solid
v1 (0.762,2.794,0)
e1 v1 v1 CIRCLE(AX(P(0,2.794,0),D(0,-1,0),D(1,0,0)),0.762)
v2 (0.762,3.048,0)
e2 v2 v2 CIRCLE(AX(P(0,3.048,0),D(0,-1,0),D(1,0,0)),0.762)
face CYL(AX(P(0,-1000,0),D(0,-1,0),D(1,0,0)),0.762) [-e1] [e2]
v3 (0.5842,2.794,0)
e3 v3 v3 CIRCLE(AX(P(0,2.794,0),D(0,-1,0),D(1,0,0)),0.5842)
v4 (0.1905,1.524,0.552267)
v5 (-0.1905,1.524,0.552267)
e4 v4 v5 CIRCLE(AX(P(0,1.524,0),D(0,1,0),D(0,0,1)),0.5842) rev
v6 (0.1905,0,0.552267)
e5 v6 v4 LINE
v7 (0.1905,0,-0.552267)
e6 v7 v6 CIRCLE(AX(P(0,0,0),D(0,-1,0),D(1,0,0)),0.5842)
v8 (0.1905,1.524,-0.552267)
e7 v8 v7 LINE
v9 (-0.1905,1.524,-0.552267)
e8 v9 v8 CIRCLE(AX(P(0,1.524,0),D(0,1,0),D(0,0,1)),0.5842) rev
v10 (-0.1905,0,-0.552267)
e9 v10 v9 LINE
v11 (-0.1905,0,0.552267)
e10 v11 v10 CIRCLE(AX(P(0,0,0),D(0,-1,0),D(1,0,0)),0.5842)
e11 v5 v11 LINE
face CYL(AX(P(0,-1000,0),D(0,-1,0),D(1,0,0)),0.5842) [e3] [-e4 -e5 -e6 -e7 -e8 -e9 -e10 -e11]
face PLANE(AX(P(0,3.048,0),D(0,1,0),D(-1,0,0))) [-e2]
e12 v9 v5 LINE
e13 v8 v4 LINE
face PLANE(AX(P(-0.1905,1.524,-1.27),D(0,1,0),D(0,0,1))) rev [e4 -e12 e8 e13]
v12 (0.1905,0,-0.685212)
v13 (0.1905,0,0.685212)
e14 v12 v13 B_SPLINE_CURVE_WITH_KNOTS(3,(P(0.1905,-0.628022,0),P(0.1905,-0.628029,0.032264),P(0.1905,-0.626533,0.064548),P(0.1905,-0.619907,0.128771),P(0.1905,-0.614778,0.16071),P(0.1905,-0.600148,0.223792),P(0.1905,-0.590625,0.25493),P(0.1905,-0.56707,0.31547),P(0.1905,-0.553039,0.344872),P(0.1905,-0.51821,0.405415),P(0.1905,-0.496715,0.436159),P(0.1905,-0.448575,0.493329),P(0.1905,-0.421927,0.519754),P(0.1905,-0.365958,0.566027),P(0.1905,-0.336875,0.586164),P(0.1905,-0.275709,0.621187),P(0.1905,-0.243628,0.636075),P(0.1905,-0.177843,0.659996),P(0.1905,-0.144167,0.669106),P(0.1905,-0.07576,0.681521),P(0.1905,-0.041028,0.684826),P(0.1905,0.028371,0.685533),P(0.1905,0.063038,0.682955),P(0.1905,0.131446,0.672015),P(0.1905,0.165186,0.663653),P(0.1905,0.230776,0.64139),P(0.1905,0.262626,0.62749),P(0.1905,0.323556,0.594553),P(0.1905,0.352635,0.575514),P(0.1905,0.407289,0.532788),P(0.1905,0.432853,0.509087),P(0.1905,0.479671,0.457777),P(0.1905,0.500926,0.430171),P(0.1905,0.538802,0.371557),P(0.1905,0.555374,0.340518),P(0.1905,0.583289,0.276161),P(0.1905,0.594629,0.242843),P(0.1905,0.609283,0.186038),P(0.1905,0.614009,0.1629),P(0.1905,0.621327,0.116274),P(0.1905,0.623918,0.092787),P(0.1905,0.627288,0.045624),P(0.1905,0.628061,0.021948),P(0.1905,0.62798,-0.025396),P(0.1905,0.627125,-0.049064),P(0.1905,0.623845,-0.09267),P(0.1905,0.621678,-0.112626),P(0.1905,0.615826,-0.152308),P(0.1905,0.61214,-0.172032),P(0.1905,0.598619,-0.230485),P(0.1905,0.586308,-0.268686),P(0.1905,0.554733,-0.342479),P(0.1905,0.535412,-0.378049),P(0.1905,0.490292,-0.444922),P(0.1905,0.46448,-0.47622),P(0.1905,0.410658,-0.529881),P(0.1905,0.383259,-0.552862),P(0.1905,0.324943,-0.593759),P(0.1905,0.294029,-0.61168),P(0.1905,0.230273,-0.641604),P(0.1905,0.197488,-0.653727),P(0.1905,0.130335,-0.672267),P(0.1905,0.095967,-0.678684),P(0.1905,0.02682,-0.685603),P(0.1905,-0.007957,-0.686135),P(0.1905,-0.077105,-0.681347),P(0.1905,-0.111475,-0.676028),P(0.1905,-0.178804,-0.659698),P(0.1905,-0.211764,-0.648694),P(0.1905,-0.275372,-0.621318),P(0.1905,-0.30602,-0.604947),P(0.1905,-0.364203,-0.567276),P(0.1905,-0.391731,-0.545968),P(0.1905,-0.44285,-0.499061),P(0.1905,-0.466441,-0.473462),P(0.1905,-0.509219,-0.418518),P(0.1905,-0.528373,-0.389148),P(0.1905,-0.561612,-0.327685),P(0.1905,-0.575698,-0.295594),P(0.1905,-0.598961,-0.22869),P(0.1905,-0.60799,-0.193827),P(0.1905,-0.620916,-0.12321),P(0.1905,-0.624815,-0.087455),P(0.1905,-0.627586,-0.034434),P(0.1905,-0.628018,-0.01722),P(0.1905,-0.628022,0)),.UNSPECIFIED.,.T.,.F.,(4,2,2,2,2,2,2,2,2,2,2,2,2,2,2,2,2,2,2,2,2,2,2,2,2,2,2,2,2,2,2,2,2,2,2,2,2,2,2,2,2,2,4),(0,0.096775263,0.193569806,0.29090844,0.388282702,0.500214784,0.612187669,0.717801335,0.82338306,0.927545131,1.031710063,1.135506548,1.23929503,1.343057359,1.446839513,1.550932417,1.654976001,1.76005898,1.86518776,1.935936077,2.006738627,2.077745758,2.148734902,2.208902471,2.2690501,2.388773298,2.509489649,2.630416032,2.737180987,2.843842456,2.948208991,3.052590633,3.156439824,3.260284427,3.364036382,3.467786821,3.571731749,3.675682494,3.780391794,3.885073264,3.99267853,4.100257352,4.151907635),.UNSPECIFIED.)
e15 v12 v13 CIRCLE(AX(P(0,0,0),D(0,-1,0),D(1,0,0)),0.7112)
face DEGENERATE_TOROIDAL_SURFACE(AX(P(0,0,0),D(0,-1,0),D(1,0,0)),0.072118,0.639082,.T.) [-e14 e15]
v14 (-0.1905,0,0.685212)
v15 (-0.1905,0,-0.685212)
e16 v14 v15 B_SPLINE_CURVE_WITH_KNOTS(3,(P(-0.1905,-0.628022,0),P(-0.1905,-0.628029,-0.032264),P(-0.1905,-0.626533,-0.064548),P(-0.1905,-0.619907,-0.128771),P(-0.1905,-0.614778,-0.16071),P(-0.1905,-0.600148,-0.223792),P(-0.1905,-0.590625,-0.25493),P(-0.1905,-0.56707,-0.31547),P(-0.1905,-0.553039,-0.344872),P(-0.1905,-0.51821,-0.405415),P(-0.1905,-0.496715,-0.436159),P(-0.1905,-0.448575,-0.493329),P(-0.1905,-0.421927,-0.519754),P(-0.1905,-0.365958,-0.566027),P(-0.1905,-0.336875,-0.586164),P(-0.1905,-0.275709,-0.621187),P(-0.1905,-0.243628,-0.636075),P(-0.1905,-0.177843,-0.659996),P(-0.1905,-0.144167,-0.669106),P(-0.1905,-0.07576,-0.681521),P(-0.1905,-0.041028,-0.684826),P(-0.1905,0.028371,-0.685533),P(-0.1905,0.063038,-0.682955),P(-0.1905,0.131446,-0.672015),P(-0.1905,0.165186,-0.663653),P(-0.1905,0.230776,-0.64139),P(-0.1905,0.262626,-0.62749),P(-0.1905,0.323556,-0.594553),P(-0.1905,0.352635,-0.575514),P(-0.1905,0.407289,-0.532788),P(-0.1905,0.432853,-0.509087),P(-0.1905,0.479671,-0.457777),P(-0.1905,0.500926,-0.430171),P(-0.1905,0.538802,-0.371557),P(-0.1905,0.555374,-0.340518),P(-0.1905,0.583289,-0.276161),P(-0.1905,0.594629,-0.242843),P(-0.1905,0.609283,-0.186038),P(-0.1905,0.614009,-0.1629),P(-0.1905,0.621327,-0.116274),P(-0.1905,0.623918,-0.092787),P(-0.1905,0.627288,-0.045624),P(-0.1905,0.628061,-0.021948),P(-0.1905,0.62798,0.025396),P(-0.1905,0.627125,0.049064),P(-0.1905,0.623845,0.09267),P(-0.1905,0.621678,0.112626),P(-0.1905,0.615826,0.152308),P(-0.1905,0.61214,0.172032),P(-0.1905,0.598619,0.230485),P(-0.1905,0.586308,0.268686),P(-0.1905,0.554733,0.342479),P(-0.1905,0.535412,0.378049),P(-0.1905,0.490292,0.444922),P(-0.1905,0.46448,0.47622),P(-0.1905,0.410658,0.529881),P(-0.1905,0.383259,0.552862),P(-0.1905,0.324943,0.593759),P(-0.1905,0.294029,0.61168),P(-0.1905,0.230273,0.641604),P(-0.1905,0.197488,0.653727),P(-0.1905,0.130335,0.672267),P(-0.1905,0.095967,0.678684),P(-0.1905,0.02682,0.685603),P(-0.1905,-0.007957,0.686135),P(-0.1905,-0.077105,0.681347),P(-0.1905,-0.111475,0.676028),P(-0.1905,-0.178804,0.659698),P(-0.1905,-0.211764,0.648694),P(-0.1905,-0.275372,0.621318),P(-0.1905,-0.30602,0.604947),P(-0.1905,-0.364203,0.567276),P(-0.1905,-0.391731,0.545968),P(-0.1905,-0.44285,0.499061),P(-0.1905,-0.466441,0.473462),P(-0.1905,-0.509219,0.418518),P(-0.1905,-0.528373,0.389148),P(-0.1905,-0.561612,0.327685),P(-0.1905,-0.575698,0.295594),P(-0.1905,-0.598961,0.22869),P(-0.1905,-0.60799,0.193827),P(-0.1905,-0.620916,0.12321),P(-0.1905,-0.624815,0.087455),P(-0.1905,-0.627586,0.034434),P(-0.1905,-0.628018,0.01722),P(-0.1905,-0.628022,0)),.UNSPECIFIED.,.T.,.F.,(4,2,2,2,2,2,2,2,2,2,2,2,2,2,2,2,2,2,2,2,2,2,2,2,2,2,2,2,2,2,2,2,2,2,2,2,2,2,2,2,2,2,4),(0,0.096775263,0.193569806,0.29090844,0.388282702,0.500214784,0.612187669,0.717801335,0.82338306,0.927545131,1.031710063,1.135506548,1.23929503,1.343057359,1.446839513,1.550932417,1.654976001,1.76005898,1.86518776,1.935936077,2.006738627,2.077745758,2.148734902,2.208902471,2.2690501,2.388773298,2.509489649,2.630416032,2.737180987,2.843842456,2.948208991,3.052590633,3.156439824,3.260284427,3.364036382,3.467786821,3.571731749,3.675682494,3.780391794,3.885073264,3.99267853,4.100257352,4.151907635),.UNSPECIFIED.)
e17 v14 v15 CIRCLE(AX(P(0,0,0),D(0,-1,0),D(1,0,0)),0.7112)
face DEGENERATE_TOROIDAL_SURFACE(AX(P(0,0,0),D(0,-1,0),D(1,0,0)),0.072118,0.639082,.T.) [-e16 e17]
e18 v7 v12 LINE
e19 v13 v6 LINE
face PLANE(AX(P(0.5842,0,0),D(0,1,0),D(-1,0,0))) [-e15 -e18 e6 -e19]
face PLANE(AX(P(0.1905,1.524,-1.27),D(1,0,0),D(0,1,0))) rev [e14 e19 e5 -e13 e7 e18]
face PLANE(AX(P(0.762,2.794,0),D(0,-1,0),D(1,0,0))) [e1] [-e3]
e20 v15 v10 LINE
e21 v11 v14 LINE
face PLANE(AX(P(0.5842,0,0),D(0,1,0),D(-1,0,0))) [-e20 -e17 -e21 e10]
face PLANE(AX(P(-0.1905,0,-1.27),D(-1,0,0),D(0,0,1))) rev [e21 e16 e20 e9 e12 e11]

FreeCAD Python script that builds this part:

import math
import FreeCAD as App
import Part
import Sketcher

V = App.Vector
Q = App.Units.Quantity


def add_polygon(sketch, points):
    """Adds a closed chain of lines whose ends are joined by coincident constraints."""
    first, n = sketch.GeometryCount, len(points)
    for a, b in zip(points, points[1:] + points[:1]):
        sketch.addGeometry(Part.LineSegment(App.Vector(*a, 0), App.Vector(*b, 0)), False)
    for i in range(n):
        sketch.addConstraint(Sketcher.Constraint("Coincident", first + i, 2, first + (i + 1) % n, 1))

doc = App.newDocument("Part")
body = doc.addObject("PartDesign::Body", "Body")

sketch1 = body.newObject("Sketcher::SketchObject", "Sketch")
sketch1.AttachmentSupport = (doc.getObject("XY_Plane"), [""])
sketch1.MapMode = "FlatFace"
sketch1.addGeometry([
    Part.LineSegment(V(0.76, 3.05, 0), V(0, 3.05, 0)),
    Part.LineSegment(V(0, 3.05, 0), V(0, -0.64, 0)),
    Part.ArcOfCircle(Part.Circle(V(0.07, 0, 0), V(0, 0, 1), 0.64), math.radians(-96), math.radians(0)),
    Part.LineSegment(V(0.71, 0, 0), V(0.58, 0, 0)),
    Part.LineSegment(V(0.58, 0, 0), V(0.58, 2.79, 0)),
    Part.LineSegment(V(0.58, 2.79, 0), V(0.76, 2.79, 0)),
    Part.LineSegment(V(0.76, 2.79, 0), V(0.76, 3.05, 0)),
], False)
sketch1.addConstraint([
    Sketcher.Constraint("Coincident", 0, 2, 1, 1),
    Sketcher.Constraint("Coincident", 1, 2, 2, 1),
    Sketcher.Constraint("Coincident", 2, 2, 3, 1),
    Sketcher.Constraint("Coincident", 3, 2, 4, 1),
    Sketcher.Constraint("Coincident", 4, 2, 5, 1),
    Sketcher.Constraint("Coincident", 5, 2, 6, 1),
    Sketcher.Constraint("Coincident", 6, 2, 0, 1),
    Sketcher.Constraint("Horizontal", 0),
    Sketcher.Constraint("Vertical", 1),
    Sketcher.Constraint("Horizontal", 3),
    Sketcher.Constraint("Vertical", 4),
    Sketcher.Constraint("Horizontal", 5),
    Sketcher.Constraint("Vertical", 6),
    Sketcher.Constraint("PointOnObject", 2, 3, -1),
    Sketcher.Constraint("PointOnObject", 0, 2, -2),
    Sketcher.Constraint("PointOnObject", 2, 2, -1),
    Sketcher.Constraint("DistanceX", 0, 2, 0, 1, Q("0.03 in")),
    Sketcher.Constraint("DistanceY", 4, 1, 4, 2, Q("0.11 in")),
    Sketcher.Constraint("DistanceY", 6, 1, 6, 2, Q("0.01 in")),
    Sketcher.Constraint("DistanceX", 3, 2, 3, 1, Q("0.005 in")),
    Sketcher.Constraint("DistanceX", 5, 1, 5, 2, Q("0.007 in")),
    Sketcher.Constraint("DistanceY", 1, 2, 1, 1, Q("0.145 in")),
])
revolution = body.newObject("PartDesign::Revolution", "Revolution")
revolution.Profile = sketch1
revolution.ReferenceAxis = (sketch1, ["V_Axis"])
revolution.Angle = 360

sketch2 = body.newObject("Sketcher::SketchObject", "Sketch001")
sketch2.AttachmentSupport = (doc.getObject("XY_Plane"), [""])
sketch2.MapMode = "FlatFace"
add_polygon(sketch2, [(-0.19, 1.52), (-0.19, -0.66), (0.19, -0.66), (0.19, 1.52)])
sketch2.addConstraint([
    Sketcher.Constraint("Vertical", 0),
    Sketcher.Constraint("Horizontal", 1),
    Sketcher.Constraint("Vertical", 2),
    Sketcher.Constraint("Horizontal", 3),
    Sketcher.Constraint("DistanceX", 1, 1, 1, 2, Q("0.015 in")),
    Sketcher.Constraint("DistanceY", 0, 2, 0, 1, Q("0.086 in")),
    Sketcher.Constraint("DistanceY", -1, 1, 2, 2, Q("0.06 in")),
    Sketcher.Constraint("DistanceX", 0, 2, -1, 1, Q("0.0075 in")),
])
pocket1 = body.newObject("PartDesign::Pocket", "Pocket")
pocket1.Profile = sketch2
pocket1.Length = Q("0.1 in")
pocket1.Midplane = True

doc.recompute()
